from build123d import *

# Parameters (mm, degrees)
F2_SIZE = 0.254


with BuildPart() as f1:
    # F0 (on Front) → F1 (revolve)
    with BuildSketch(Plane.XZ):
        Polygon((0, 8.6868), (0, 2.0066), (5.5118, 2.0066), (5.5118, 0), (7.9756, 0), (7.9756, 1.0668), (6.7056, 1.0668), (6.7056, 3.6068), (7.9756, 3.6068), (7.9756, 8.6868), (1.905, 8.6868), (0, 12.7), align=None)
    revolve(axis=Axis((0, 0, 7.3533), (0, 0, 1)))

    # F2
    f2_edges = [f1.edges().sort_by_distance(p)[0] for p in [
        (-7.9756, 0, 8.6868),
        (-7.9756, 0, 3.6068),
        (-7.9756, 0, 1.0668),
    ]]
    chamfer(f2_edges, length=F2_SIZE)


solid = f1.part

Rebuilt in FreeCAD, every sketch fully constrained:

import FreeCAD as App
import Part
import Sketcher

V = App.Vector
Q = App.Units.Quantity


def edges_at(feature, points):
    """Names of the edges that pass closest to the given points."""
    edges = feature.Shape.Edges
    near = lambda p: min(range(len(edges)), key=lambda i: edges[i].distToShape(Part.Vertex(*p))[0])
    return sorted({f"Edge{near(p) + 1}" for p in points})


def add_polygon(sketch, points):
    """Adds a closed chain of lines whose ends are joined by coincident constraints."""
    first, n = sketch.GeometryCount, len(points)
    for a, b in zip(points, points[1:] + points[:1]):
        sketch.addGeometry(Part.LineSegment(App.Vector(*a, 0), App.Vector(*b, 0)), False)
    for i in range(n):
        sketch.addConstraint(Sketcher.Constraint("Coincident", first + i, 2, first + (i + 1) % n, 1))

doc = App.newDocument("Part")
params = doc.addObject("Spreadsheet::Sheet", "Params")
for row, (alias, value) in enumerate([
    ("sketch1_height", "0.1 in"),
    ("sketch1_height2", "0.2 in"),
    ("sketch1_width", "0.05 in"),
    ("sketch1_width2", "0.217 in"),
    ("sketch1_width3", "0.097 in"),
    ("revolution_angle", "360 deg"),
    ("chamfer_size", "0.01 in"),
], start=1):
    params.set(f"A{row}", alias)
    params.set(f"B{row}", "=" + value)
    params.setAlias(f"B{row}", alias)

body = doc.addObject("PartDesign::Body", "Body")

sketch1 = body.newObject("Sketcher::SketchObject", "Sketch")
sketch1.AttachmentSupport = (doc.getObject("XZ_Plane"), [""])
sketch1.MapMode = "FlatFace"
add_polygon(sketch1, [(0, 2), (5.5, 2), (5.5, 0), (8, 0), (8, 1.1), (6.7, 1.1), (6.7, 3.6), (8, 3.6), (8, 8.7), (1.9, 8.7), (0, 12.7)])
sketch1.addConstraint([
    Sketcher.Constraint("Horizontal", 0),
    Sketcher.Constraint("Vertical", 1),
    Sketcher.Constraint("Horizontal", 2),
    Sketcher.Constraint("Vertical", 3),
    Sketcher.Constraint("Horizontal", 4),
    Sketcher.Constraint("Vertical", 5),
    Sketcher.Constraint("Horizontal", 6),
    Sketcher.Constraint("Vertical", 7),
    Sketcher.Constraint("Horizontal", 8),
    Sketcher.Constraint("Vertical", 10),
    Sketcher.Constraint("PointOnObject", 1, 2, -1),
    Sketcher.Constraint("PointOnObject", 9, 2, -2),
    Sketcher.Constraint("Vertical", 3, 2, 6, 2),
    Sketcher.Constraint("DistanceY", 5, 1, 5, 2, Q("0.1 in")),
    Sketcher.Constraint("DistanceY", 7, 1, 7, 2, Q("0.2 in")),
    Sketcher.Constraint("DistanceX", 4, 2, 4, 1, Q("0.05 in")),
    Sketcher.Constraint("DistanceY", -1, 1, 9, 2, Q("0.5 in")),
    Sketcher.Constraint("DistanceX", 0, 1, 0, 2, Q("0.217 in")),
    Sketcher.Constraint("DistanceX", 2, 1, 2, 2, Q("0.097 in")),
    Sketcher.Constraint("DistanceX", 8, 2, 8, 1, Q("0.239 in")),
    Sketcher.Constraint("DistanceY", 1, 2, 1, 1, Q("0.079 in")),
    Sketcher.Constraint("DistanceY", 3, 1, 3, 2, Q("0.042 in")),
])
sketch1.setExpression("Constraints[24]", "Params.sketch1_height")
sketch1.setExpression("Constraints[25]", "Params.sketch1_height2")
sketch1.setExpression("Constraints[26]", "Params.sketch1_width")
sketch1.setExpression("Constraints[28]", "Params.sketch1_width2")
sketch1.setExpression("Constraints[29]", "Params.sketch1_width3")
revolution = body.newObject("PartDesign::Revolution", "Revolution")
revolution.Profile = sketch1
revolution.ReferenceAxis = (sketch1, ["V_Axis"])
revolution.setExpression("Angle", "Params.revolution_angle")
doc.recompute()

chamfer = body.newObject("PartDesign::Chamfer", "Chamfer")
chamfer.Base = (revolution, edges_at(revolution, [(-7.976, 0, 8.687), (-7.976, 0, 3.607), (-7.976, 0, 1.067)]))
chamfer.setExpression("Size", "Params.chamfer_size")

doc.recompute()
